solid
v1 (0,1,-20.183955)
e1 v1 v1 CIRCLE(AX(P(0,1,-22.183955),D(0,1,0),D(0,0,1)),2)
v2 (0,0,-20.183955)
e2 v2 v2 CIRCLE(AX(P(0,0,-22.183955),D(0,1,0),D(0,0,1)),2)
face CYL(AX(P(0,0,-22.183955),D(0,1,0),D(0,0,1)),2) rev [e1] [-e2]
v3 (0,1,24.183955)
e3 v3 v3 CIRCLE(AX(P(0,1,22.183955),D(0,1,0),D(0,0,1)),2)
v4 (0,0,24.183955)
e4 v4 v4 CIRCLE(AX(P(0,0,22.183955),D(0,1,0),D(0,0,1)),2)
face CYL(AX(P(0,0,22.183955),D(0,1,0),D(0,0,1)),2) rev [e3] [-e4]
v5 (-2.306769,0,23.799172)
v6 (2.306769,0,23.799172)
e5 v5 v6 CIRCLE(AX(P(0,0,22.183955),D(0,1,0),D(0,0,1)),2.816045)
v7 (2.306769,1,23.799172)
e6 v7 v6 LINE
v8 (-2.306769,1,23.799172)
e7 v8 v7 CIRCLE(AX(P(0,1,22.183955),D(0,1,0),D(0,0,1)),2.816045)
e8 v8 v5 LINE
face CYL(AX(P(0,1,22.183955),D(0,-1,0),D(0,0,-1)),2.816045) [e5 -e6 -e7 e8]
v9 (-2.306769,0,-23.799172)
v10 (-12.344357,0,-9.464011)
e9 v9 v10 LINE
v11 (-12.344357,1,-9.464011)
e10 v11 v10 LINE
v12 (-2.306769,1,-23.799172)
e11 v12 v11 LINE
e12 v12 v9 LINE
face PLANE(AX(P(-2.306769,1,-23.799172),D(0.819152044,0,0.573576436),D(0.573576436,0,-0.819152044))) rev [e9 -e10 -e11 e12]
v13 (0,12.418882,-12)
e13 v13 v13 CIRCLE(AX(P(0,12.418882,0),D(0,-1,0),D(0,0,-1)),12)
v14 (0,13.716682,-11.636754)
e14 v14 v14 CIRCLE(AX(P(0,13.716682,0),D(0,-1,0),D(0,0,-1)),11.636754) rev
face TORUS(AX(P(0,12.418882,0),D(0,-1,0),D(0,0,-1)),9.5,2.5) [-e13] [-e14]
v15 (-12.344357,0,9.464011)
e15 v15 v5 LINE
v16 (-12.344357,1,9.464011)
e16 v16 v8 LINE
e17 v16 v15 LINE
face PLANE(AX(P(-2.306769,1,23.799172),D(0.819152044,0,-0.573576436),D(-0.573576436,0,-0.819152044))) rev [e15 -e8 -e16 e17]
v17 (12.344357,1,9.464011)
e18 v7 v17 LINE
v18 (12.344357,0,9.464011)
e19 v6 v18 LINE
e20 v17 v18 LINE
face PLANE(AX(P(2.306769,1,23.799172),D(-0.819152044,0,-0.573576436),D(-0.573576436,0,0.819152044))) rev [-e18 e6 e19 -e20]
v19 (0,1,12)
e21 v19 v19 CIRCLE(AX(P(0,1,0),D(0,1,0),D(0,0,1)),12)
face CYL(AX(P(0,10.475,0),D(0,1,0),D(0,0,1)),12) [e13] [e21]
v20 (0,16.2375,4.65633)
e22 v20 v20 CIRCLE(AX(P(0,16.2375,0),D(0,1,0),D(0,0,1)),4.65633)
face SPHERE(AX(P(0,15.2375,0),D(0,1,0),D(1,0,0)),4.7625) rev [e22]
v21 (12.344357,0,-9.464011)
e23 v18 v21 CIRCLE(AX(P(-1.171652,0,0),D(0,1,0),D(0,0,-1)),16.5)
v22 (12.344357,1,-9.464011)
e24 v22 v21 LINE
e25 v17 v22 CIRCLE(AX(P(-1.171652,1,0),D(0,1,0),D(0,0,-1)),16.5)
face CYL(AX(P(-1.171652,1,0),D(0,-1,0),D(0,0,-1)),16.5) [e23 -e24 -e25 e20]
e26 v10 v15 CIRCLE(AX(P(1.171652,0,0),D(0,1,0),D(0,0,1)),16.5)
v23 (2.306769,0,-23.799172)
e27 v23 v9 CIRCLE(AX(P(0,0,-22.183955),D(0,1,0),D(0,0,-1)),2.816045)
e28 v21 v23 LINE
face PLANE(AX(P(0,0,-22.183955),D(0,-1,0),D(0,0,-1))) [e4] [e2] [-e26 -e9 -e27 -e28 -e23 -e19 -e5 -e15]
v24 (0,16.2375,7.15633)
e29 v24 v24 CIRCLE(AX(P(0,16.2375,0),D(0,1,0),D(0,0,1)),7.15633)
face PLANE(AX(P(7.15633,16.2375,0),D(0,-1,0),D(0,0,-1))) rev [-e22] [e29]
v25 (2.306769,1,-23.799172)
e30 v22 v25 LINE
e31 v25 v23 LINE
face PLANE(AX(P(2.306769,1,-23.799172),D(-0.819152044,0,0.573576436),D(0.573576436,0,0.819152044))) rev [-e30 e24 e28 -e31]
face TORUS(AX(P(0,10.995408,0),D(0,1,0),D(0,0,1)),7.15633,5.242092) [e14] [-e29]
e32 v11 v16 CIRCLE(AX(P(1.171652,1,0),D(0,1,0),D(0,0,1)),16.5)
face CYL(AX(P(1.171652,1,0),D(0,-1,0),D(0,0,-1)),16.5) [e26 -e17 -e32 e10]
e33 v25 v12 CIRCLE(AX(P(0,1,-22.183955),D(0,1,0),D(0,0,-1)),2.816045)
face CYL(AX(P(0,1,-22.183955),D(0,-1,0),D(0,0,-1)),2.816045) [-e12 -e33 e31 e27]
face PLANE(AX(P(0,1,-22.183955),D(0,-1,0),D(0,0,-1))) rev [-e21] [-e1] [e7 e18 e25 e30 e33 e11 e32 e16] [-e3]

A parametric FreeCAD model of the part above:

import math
import FreeCAD as App
import Part
import Sketcher
Q = App.Units.Quantity


def edges_at(feature, points):
    """Names of the edges that pass closest to the given points."""
    edges = feature.Shape.Edges
    near = lambda p: min(range(len(edges)), key=lambda i: edges[i].distToShape(Part.Vertex(*p))[0])
    return sorted({f"Edge{near(p) + 1}" for p in points})

doc = App.newDocument("Part")
params = doc.addObject("Spreadsheet::Sheet", "Params")
for row, (alias, value) in enumerate([
    ("sketch1_radius", "16.5 mm"),
    ("sketch1_length", "17.5 mm"),
    ("pad1_length", "1 mm"),
    ("sketch2_width", "12 mm"),
    ("sketch2_width2", "2.5 mm"),
    ("revolution_angle", "360 deg"),
    ("fillet_radius", "2.5 mm"),
    ("sketch3_diameter", "4 mm"),
], start=1):
    params.set(f"A{row}", alias)
    params.set(f"B{row}", "=" + value)
    params.setAlias(f"B{row}", alias)

body = doc.addObject("PartDesign::Body", "Body")

# Sketch on XZ plane
sketch1 = doc.addObject("Sketcher::SketchObject", "Sketch")
body.addObject(sketch1)
sketch1.AttachmentSupport = (doc.XZ_Plane, [""])
sketch1.MapMode = "FlatFace"
sketch1.addGeometry([
    Part.LineSegment(App.Vector(-2.3, -23.8, 0), App.Vector(-12.3, -9.5, 0)),  # 0
    Part.ArcOfCircle(Part.Circle(App.Vector(1.2, 0, 0), App.Vector(0, 0, 1), 16.5), math.radians(145), math.radians(215)),  # 1
    Part.LineSegment(App.Vector(-12.3, 9.5, 0), App.Vector(-2.3, 23.8, 0)),  # 2
    Part.ArcOfCircle(Part.Circle(App.Vector(0, 22.2, 0), App.Vector(0, 0, 1), 2.8), math.radians(35), math.radians(145)),  # 3
    Part.LineSegment(App.Vector(2.3, 23.8, 0), App.Vector(12.3, 9.5, 0)),  # 4
    Part.ArcOfCircle(Part.Circle(App.Vector(-1.2, 0, 0), App.Vector(0, 0, 1), 16.5), math.radians(-35), math.radians(35)),  # 5
    Part.LineSegment(App.Vector(12.3, -9.5, 0), App.Vector(2.3, -23.8, 0)),  # 6
    Part.ArcOfCircle(Part.Circle(App.Vector(0, -22.2, 0), App.Vector(0, 0, 1), 2.8), math.radians(-145), math.radians(-35)),  # 7
], False)
sketch1.addConstraint([
    Sketcher.Constraint("Tangent", 0, 2, 1, 2),
    Sketcher.Constraint("Tangent", 1, 1, 2, 1),
    Sketcher.Constraint("Tangent", 2, 2, 3, 2),
    Sketcher.Constraint("Tangent", 3, 1, 4, 1),
    Sketcher.Constraint("Tangent", 4, 2, 5, 2),
    Sketcher.Constraint("Tangent", 5, 1, 6, 1),
    Sketcher.Constraint("Tangent", 6, 2, 7, 2),
    Sketcher.Constraint("Tangent", 7, 1, 0, 1),
    Sketcher.Constraint("Equal", 1, 5),
    Sketcher.Constraint("Equal", 3, 7),
    Sketcher.Constraint("Symmetric", 1, 3, 5, 3, -1, 1),
    Sketcher.Constraint("Symmetric", 3, 3, 7, 3, -1, 1),
    Sketcher.Constraint("Symmetric", 2, 2, 3, 1, -2),
    Sketcher.Constraint("Radius", 1, 16.5),
    Sketcher.Constraint("Angle", 0, Q("125 deg")),
    Sketcher.Constraint("Distance", 0, 17.5),
    Sketcher.Constraint("Radius", 3, 2.816045),
])
sketch1.setExpression("Constraints[13]", "Params.sketch1_radius")
sketch1.setExpression("Constraints[15]", "Params.sketch1_length")
pad1 = doc.addObject("PartDesign::Pad", "Pad")
body.addObject(pad1)
pad1.Profile = sketch1
pad1.setExpression("Length", "Params.pad1_length")
pad1.Reversed = True

# Sketch on XY plane
sketch2 = doc.addObject("Sketcher::SketchObject", "Sketch001")
body.addObject(sketch2)
sketch2.AttachmentSupport = (doc.XY_Plane, [""])
sketch2.MapMode = "FlatFace"
sketch2.addGeometry([
    Part.LineSegment(App.Vector(0, 1, 0), App.Vector(12, 1, 0)),  # 0
    Part.LineSegment(App.Vector(12, 1, 0), App.Vector(12, 13, 0)),  # 1
    Part.ArcOfCircle(Part.Circle(App.Vector(7.2, 11, 0), App.Vector(0, 0, 1), 5.2), math.radians(22), math.radians(90)),  # 2
    Part.LineSegment(App.Vector(7.2, 16.2, 0), App.Vector(4.7, 16.2, 0)),  # 3
    Part.ArcOfCircle(Part.Circle(App.Vector(0, 15.2, 0), App.Vector(0, 0, 1), 4.8), math.radians(-90), math.radians(12)),  # 4
    Part.LineSegment(App.Vector(0, 10.5, 0), App.Vector(0, 1, 0)),  # 5
], False)
sketch2.addConstraint([
    Sketcher.Constraint("Coincident", 0, 2, 1, 1),
    Sketcher.Constraint("Coincident", 1, 2, 2, 1),
    Sketcher.Constraint("Tangent", 2, 2, 3, 1),
    Sketcher.Constraint("Coincident", 3, 2, 4, 2),
    Sketcher.Constraint("Coincident", 4, 1, 5, 1),
    Sketcher.Constraint("Coincident", 5, 2, 0, 1),
    Sketcher.Constraint("Horizontal", 0),
    Sketcher.Constraint("Vertical", 1),
    Sketcher.Constraint("Horizontal", 3),
    Sketcher.Constraint("Vertical", 5),
    Sketcher.Constraint("PointOnObject", 4, 3, -2),
    Sketcher.Constraint("PointOnObject", 4, 1, -2),
    Sketcher.Constraint("Equal", 0, 1),
    Sketcher.Constraint("DistanceX", 0, 1, 0, 2, 12.0),
    Sketcher.Constraint("DistanceX", 3, 2, 3, 1, 2.5),
    Sketcher.Constraint("DistanceY", -1, 1, 0, 2, 1.0),
    Sketcher.Constraint("DistanceY", 4, 3, 2, 2, 1.0),
    Sketcher.Constraint("Radius", 4, 4.7625),
    Sketcher.Constraint("DistanceY", 5, 2, 5, 1, 9.475),
])
sketch2.setExpression("Constraints[13]", "Params.sketch2_width")
sketch2.setExpression("Constraints[14]", "Params.sketch2_width2")
revolution = doc.addObject("PartDesign::Revolution", "Revolution")
body.addObject(revolution)
revolution.Profile = sketch2
revolution.ReferenceAxis = (sketch2, ["V_Axis"])
revolution.setExpression("Angle", "Params.revolution_angle")
doc.recompute()

fillet = doc.addObject("PartDesign::Fillet", "Fillet")
body.addObject(fillet)
fillet.Base = (revolution, edges_at(revolution, [(0, 13, -12)]))
fillet.setExpression("Radius", "Params.fillet_radius")

# Sketch on XZ plane
sketch3 = doc.addObject("Sketcher::SketchObject", "Sketch002")
body.addObject(sketch3)
sketch3.AttachmentSupport = (doc.XZ_Plane, [""])
sketch3.MapMode = "FlatFace"
sketch3.AttachmentOffset = App.Placement(App.Vector(0, 0, -1), App.Rotation())
sketch3.addGeometry([
    Part.Circle(App.Vector(0, 22.2, 0), App.Vector(0, 0, 1), 2),
    Part.Circle(App.Vector(0, -22.2, 0), App.Vector(0, 0, 1), 2),
], False)
sketch3.addConstraint([
    Sketcher.Constraint("Equal", 0, 1),
    Sketcher.Constraint("Symmetric", 0, 3, 1, 3, -1, 1),
    Sketcher.Constraint("PointOnObject", 0, 3, -2),
    Sketcher.Constraint("Diameter", 0, 4.0),
    Sketcher.Constraint("DistanceY", 1, 3, 0, 3, 44.36791),
])
sketch3.setExpression("Constraints[3]", "Params.sketch3_diameter")
pocket1 = doc.addObject("PartDesign::Pocket", "Pocket")
body.addObject(pocket1)
pocket1.Profile = sketch3
pocket1.Type = "ThroughAll"
pocket1.Reversed = True

doc.recompute()
